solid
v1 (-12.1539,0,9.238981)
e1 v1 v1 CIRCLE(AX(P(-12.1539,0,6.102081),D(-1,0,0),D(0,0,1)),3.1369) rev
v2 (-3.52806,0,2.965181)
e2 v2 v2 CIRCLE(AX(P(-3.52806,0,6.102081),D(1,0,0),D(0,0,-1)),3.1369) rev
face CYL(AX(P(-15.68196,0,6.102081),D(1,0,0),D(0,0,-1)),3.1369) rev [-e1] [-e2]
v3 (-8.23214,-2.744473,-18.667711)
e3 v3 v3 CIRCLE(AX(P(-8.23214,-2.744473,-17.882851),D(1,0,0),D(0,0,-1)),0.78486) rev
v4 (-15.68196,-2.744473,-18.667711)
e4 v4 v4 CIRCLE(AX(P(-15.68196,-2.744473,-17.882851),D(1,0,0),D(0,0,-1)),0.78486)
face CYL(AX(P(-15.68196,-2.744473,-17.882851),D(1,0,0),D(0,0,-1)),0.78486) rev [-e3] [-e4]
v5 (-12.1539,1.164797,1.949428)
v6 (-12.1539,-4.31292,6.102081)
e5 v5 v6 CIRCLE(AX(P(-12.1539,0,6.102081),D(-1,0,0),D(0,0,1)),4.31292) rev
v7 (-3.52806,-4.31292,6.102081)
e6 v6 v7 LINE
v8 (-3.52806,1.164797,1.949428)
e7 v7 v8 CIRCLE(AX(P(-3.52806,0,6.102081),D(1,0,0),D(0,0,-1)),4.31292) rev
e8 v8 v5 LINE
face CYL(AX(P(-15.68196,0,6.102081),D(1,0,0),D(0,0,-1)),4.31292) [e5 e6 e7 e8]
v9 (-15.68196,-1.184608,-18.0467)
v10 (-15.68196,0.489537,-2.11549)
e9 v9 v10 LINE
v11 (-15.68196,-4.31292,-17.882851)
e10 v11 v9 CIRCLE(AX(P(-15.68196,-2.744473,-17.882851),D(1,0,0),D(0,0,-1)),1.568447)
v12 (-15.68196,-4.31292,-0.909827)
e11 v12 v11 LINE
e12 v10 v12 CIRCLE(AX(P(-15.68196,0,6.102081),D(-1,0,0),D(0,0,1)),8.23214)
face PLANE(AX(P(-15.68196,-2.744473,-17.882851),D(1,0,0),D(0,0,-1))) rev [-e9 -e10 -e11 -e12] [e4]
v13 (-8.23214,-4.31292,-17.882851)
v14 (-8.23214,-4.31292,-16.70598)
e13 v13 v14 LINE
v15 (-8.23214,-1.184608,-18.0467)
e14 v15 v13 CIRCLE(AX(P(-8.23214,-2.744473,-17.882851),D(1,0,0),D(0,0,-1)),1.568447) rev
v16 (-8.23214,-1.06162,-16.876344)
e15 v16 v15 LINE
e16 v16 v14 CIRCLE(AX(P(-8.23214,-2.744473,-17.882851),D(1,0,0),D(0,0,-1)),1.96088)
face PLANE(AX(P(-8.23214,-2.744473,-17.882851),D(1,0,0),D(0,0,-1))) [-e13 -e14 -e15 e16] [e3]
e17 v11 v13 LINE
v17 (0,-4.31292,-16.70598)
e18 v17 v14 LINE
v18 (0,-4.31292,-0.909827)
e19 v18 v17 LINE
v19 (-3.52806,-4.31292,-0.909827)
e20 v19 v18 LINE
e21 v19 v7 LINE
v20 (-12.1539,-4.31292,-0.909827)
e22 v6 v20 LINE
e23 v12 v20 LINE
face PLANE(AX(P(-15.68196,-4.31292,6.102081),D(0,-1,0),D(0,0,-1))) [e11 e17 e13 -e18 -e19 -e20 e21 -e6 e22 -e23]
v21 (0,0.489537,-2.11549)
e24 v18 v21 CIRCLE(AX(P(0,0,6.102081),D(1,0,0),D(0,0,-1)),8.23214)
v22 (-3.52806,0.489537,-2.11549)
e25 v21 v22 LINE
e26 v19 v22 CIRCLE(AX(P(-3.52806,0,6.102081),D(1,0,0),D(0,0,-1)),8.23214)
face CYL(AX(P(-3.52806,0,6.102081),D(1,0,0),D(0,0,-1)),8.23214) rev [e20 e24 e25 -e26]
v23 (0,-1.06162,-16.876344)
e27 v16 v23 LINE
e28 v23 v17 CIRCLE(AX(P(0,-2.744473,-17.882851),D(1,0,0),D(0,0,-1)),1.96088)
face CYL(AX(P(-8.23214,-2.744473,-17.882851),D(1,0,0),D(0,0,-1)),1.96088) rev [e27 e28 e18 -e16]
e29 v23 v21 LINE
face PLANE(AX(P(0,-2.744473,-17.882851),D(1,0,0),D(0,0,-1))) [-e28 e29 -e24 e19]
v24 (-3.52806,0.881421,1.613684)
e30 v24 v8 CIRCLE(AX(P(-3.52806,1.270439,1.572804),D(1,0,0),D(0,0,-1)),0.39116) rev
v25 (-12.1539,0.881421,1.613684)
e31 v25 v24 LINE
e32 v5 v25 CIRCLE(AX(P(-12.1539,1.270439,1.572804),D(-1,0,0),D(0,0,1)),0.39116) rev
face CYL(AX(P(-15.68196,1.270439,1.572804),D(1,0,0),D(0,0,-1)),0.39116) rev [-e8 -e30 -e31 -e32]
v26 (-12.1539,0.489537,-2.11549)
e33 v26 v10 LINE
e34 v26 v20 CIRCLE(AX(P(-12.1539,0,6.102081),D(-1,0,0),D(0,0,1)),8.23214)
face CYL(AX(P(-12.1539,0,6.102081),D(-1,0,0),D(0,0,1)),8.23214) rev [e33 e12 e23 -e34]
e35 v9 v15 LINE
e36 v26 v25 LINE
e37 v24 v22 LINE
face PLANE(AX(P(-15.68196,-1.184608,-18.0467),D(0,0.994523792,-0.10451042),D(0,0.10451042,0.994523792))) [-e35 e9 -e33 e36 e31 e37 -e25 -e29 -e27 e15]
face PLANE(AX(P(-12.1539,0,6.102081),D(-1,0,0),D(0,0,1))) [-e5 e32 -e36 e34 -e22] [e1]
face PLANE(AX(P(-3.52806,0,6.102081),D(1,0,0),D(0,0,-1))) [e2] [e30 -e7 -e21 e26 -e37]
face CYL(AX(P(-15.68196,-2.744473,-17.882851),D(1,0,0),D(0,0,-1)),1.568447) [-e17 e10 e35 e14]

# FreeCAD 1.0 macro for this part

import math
import FreeCAD as App
import Part
import Sketcher
from FreeCAD import Vector
Q = App.Units.Quantity


def edges_at(feature, points):
    """Names of the edges that pass closest to the given points."""
    edges = feature.Shape.Edges
    near = lambda p: min(range(len(edges)), key=lambda i: edges[i].distToShape(Part.Vertex(*p))[0])
    return sorted({f"Edge{near(p) + 1}" for p in points})

doc = App.newDocument("Part")
body = doc.addObject("PartDesign::Body", "Body")

# Sketch on YZ plane
sketch1 = body.newObject("Sketcher::SketchObject", "Sketch")
sketch1.AttachmentSupport = (doc.getObject("YZ_Plane"), [""])
sketch1.MapMode = "FlatFace"
sketch1.addGeometry(Part.LineSegment(Vector(-4.3, 6.1, 0), Vector(-4.3, -17.9, 0)), False)
sketch1.addGeometry(Part.ArcOfCircle(Part.Circle(Vector(-2.7, -17.9, 0), Vector(0, 0, 1), 1.6), math.radians(180), math.radians(354)), False)
sketch1.addGeometry(Part.LineSegment(Vector(-1.2, -18, 0), Vector(0.9, 1.9, 0)), False)
sketch1.addGeometry(Part.ArcOfCircle(Part.Circle(Vector(0, 6.1, 0), Vector(0, 0, 1), 4.3), math.radians(-78), math.radians(180)), False)
sketch1.addGeometry(Part.Circle(Vector(-2.7, -17.9, 0), Vector(0, 0, 1), 0.8), False)
sketch1.addGeometry(Part.Circle(Vector(0, 6.1, 0), Vector(0, 0, 1), 3.1), False)
sketch1.addConstraint(Sketcher.Constraint("Tangent", 0, 2, 1, 1))
sketch1.addConstraint(Sketcher.Constraint("Coincident", 1, 2, 2, 1))
sketch1.addConstraint(Sketcher.Constraint("Coincident", 2, 2, 3, 1))
sketch1.addConstraint(Sketcher.Constraint("Tangent", 3, 2, 0, 1))
sketch1.addConstraint(Sketcher.Constraint("Vertical", 0))
sketch1.addConstraint(Sketcher.Constraint("Coincident", 4, 3, 1, 3))
sketch1.addConstraint(Sketcher.Constraint("Coincident", 5, 3, 3, 3))
sketch1.addConstraint(Sketcher.Constraint("PointOnObject", 3, 3, -2))
sketch1.addConstraint(Sketcher.Constraint("Diameter", 5, Q("0.247 in")))
sketch1.addConstraint(Sketcher.Constraint("Diameter", 4, Q("0.0618 in")))
sketch1.addConstraint(Sketcher.Constraint("Radius", 3, Q("0.1698 in")))
sketch1.addConstraint(Sketcher.Constraint("DistanceY", 1, 2, -1, 1, Q("0.7105 in")))
sketch1.addConstraint(Sketcher.Constraint("Radius", 1, Q("1.568447 mm")))
sketch1.addConstraint(Sketcher.Constraint("Distance", 2, Q("20.042729 mm")))
sketch1.addConstraint(Sketcher.Constraint("DistanceY", 0, 2, 0, 1, Q("23.984933 mm")))
sketch1.addConstraint(Sketcher.Constraint("DistanceY", 1, 3, -1, 1, Q("17.882851 mm")))
pad1 = body.newObject("PartDesign::Pad", "Pad")
pad1.Profile = sketch1
pad1.Length = Q("0.6174 in")
pad1.Reversed = True
doc.recompute()

fillet = body.newObject("PartDesign::Fillet", "Fillet")
fillet.Base = (pad1, edges_at(pad1, [(-7.841, 0.91, 1.886)]))
fillet.Radius = Q("0.0154 in")

# Sketch on YZ plane
sketch2 = body.newObject("Sketcher::SketchObject", "Sketch001")
sketch2.AttachmentSupport = (doc.getObject("YZ_Plane"), [""])
sketch2.MapMode = "FlatFace"
sketch2.addGeometry(Part.Circle(Vector(0, 6, 0), Vector(0, 0, 1), 8), False)
sketch2.addConstraint(Sketcher.Constraint("PointOnObject", 0, 3, -2))
sketch2.addConstraint(Sketcher.Constraint("Diameter", 0, Q("0.6482 in")))
sketch2.addConstraint(Sketcher.Constraint("DistanceY", -1, 1, 0, 3, Q("6.102081 mm")))
pocket1 = body.newObject("PartDesign::Pocket", "Pocket")
pocket1.Profile = sketch2
pocket1.Length = Q("0.1389 in")

# Sketch on YZ plane
sketch3 = body.newObject("Sketcher::SketchObject", "Sketch002")
sketch3.AttachmentSupport = (doc.getObject("YZ_Plane"), [""])
sketch3.MapMode = "FlatFace"
sketch3.AttachmentOffset = App.Placement(Vector(0, 0, -0.6174 * 25.4), App.Rotation())
sketch3.addGeometry(Part.Circle(Vector(0, 6, 0), Vector(0, 0, 1), 8), False)
sketch3.addConstraint(Sketcher.Constraint("PointOnObject", 0, 3, -2))
sketch3.addConstraint(Sketcher.Constraint("Diameter", 0, Q("0.6482 in")))
sketch3.addConstraint(Sketcher.Constraint("DistanceY", -1, 1, 0, 3, Q("6.102081 mm")))
pocket2 = body.newObject("PartDesign::Pocket", "Pocket001")
pocket2.Profile = sketch3
pocket2.Length = Q("0.1389 in")
pocket2.Reversed = True

# Sketch on YZ plane
sketch4 = body.newObject("Sketcher::SketchObject", "Sketch003")
sketch4.AttachmentSupport = (doc.getObject("YZ_Plane"), [""])
sketch4.MapMode = "FlatFace"
sketch4.addGeometry(Part.Circle(Vector(-2.7, -17.9, 0), Vector(0, 0, 1), 2), False)
sketch4.addConstraint(Sketcher.Constraint("Diameter", 0, Q("0.1544 in")))
sketch4.addConstraint(Sketcher.Constraint("DistanceY", 0, 3, -1, 1, Q("17.882851 mm")))
sketch4.addConstraint(Sketcher.Constraint("DistanceX", 0, 3, -1, 1, Q("2.744473 mm")))
pocket3 = body.newObject("PartDesign::Pocket", "Pocket002")
pocket3.Profile = sketch4
pocket3.Length = Q("0.3241 in")

doc.recompute()
